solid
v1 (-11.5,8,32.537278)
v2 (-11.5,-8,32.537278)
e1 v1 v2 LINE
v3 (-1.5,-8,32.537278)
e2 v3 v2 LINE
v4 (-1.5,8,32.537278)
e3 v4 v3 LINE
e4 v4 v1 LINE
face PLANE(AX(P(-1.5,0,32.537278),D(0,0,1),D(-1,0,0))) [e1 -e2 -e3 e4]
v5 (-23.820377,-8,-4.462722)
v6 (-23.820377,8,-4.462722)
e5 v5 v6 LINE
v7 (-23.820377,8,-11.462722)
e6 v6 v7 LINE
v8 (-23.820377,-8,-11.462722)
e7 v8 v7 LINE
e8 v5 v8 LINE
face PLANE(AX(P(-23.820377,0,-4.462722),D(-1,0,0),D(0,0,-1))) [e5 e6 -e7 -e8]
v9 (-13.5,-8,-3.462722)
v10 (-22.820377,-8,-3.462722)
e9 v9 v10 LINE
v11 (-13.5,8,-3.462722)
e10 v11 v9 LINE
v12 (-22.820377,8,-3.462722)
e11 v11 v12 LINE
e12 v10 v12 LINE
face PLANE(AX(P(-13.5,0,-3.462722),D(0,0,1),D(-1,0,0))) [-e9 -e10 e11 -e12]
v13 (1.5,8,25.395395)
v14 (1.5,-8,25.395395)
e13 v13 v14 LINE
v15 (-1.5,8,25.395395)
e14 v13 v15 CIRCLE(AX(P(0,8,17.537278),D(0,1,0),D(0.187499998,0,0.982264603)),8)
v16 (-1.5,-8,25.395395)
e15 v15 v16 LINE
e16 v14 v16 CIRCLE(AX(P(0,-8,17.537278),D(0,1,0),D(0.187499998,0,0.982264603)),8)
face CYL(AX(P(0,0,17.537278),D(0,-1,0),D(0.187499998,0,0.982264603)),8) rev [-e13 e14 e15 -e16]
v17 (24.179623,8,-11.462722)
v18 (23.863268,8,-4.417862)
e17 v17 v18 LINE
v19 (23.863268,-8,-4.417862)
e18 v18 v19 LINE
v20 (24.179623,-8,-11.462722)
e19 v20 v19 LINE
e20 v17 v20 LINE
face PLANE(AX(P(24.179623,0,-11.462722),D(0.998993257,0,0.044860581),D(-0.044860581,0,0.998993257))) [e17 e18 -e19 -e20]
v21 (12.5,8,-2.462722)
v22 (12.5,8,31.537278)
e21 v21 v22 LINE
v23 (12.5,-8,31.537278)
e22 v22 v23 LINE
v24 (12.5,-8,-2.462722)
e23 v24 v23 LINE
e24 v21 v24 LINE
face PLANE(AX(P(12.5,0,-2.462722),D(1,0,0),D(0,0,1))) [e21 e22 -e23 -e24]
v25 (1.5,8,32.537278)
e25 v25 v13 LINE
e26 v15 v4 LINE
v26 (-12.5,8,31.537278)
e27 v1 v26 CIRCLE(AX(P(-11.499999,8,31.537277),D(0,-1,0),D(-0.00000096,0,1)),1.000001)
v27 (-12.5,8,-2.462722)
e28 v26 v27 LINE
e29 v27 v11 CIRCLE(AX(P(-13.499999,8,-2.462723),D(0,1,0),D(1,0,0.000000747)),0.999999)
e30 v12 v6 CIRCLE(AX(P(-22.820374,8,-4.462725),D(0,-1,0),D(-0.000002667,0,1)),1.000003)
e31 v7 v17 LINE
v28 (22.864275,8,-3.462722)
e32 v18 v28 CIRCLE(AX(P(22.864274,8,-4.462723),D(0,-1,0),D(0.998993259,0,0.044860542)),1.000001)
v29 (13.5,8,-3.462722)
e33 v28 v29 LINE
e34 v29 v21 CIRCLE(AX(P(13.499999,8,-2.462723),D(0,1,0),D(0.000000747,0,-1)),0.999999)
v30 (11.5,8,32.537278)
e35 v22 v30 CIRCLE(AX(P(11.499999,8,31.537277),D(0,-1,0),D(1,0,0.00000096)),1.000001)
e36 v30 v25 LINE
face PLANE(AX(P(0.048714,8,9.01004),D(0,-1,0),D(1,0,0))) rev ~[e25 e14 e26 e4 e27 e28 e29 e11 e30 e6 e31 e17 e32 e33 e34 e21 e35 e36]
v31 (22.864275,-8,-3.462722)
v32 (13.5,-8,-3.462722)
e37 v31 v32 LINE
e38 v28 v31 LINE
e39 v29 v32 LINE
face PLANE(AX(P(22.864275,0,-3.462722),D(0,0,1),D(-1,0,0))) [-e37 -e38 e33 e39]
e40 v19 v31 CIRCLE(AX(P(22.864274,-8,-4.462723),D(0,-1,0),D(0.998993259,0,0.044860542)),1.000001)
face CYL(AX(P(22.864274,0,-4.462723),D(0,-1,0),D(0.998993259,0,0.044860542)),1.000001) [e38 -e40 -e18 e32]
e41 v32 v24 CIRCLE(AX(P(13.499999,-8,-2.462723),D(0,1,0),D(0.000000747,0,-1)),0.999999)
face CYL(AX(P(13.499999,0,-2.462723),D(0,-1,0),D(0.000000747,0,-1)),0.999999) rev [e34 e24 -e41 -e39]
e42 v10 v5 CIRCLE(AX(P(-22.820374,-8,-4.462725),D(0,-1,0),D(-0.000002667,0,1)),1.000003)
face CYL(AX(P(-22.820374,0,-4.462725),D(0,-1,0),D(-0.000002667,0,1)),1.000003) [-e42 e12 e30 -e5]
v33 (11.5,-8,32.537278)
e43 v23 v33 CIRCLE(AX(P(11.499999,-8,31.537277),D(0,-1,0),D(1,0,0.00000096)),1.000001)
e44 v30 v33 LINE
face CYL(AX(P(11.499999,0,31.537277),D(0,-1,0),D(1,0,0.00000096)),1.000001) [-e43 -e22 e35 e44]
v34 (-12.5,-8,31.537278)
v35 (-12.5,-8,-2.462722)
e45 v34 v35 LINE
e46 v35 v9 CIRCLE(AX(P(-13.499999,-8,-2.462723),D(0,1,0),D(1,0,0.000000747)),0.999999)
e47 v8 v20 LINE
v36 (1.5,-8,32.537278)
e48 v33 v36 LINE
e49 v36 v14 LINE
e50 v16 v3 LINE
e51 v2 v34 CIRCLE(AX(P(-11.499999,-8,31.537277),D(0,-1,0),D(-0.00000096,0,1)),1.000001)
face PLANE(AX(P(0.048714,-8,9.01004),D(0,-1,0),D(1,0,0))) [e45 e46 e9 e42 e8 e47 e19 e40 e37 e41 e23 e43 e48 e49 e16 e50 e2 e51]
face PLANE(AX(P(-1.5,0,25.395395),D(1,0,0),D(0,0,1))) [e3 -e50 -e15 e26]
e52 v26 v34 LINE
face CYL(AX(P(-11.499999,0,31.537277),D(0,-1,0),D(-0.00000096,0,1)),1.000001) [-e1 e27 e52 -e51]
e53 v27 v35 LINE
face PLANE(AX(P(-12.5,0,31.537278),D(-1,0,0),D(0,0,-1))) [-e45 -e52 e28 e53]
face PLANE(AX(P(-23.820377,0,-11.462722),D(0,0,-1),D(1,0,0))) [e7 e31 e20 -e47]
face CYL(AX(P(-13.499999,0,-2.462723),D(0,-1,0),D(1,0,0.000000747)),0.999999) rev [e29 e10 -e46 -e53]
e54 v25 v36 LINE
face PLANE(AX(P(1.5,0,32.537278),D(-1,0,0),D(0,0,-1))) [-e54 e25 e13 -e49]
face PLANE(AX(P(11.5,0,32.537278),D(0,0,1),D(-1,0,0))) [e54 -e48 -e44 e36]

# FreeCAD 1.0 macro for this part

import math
import FreeCAD as App
import Part
import Sketcher

V = App.Vector
Q = App.Units.Quantity

doc = App.newDocument("Part")
body = doc.addObject("PartDesign::Body", "Body")

# Sketch on XZ plane
sketch1 = body.newObject("Sketcher::SketchObject", "Sketch")
sketch1.AttachmentSupport = (doc.getObject("XZ_Plane"), [""])
sketch1.MapMode = "FlatFace"
sketch1.addGeometry([
    Part.LineSegment(V(-23.820377, -11.462722, 0), V(24.179623, -11.462722, 0)),  # 0
    Part.LineSegment(V(24.179623, -11.462722, 0), V(23.863268, -4.417862, 0)),  # 1
    Part.ArcOfCircle(Part.Circle(V(22.864274, -4.462723, 0), V(0, 0, 1), 1.000001), math.radians(2.571183), math.radians(89.999953)),  # 2
    Part.LineSegment(V(22.864275, -3.462722, 0), V(13.5, -3.462722, 0)),  # 3
    Part.ArcOfCircle(Part.Circle(V(13.499999, -2.462723, 0), V(0, 0, 1), 0.999999), math.radians(179.999957), math.radians(270.000043)),  # 4
    Part.LineSegment(V(12.5, -2.462722, 0), V(12.5, 31.537278, 0)),  # 5
    Part.ArcOfCircle(Part.Circle(V(11.499999, 31.537277, 0), V(0, 0, 1), 1.000001), math.radians(0.000055), math.radians(89.999945)),  # 6
    Part.LineSegment(V(11.5, 32.537278, 0), V(1.5, 32.537278, 0)),  # 7
    Part.LineSegment(V(1.5, 32.537278, 0), V(1.5, 25.395395, 0)),  # 8
    Part.ArcOfCircle(Part.Circle(V(0, 17.537278, 0), V(0, 0, 1), 8), math.radians(100.806923), math.radians(439.193077)),  # 9
    Part.LineSegment(V(-1.5, 25.395395, 0), V(-1.5, 32.537278, 0)),  # 10
    Part.LineSegment(V(-1.5, 32.537278, 0), V(-11.5, 32.537278, 0)),  # 11
    Part.ArcOfCircle(Part.Circle(V(-11.499999, 31.537277, 0), V(0, 0, 1), 1.000001), math.radians(90.000055), math.radians(179.999945)),  # 12
    Part.LineSegment(V(-12.5, 31.537278, 0), V(-12.5, -2.462722, 0)),  # 13
    Part.ArcOfCircle(Part.Circle(V(-13.499999, -2.462723, 0), V(0, 0, 1), 0.999999), math.radians(-90.000043), math.radians(0.000043)),  # 14
    Part.LineSegment(V(-13.5, -3.462722, 0), V(-22.820377, -3.462722, 0)),  # 15
    Part.ArcOfCircle(Part.Circle(V(-22.820374, -4.462725, 0), V(0, 0, 1), 1.000003), math.radians(90.000153), math.radians(179.999847)),  # 16
    Part.LineSegment(V(-23.820377, -4.462722, 0), V(-23.820377, -11.462722, 0)),  # 17
], False)
sketch1.addConstraint([
    Sketcher.Constraint("Coincident", 0, 2, 1, 1),
    Sketcher.Constraint("Tangent", 1, 2, 2, 1),
    Sketcher.Constraint("Tangent", 2, 2, 3, 1),
    Sketcher.Constraint("Tangent", 3, 2, 4, 2),
    Sketcher.Constraint("Tangent", 4, 1, 5, 1),
    Sketcher.Constraint("Tangent", 5, 2, 6, 1),
    Sketcher.Constraint("Tangent", 6, 2, 7, 1),
    Sketcher.Constraint("Coincident", 7, 2, 8, 1),
    Sketcher.Constraint("Coincident", 8, 2, 9, 2),
    Sketcher.Constraint("Coincident", 9, 1, 10, 1),
    Sketcher.Constraint("Coincident", 10, 2, 11, 1),
    Sketcher.Constraint("Tangent", 11, 2, 12, 1),
    Sketcher.Constraint("Tangent", 12, 2, 13, 1),
    Sketcher.Constraint("Tangent", 13, 2, 14, 2),
    Sketcher.Constraint("Tangent", 14, 1, 15, 1),
    Sketcher.Constraint("Coincident", 15, 2, 16, 1),
    Sketcher.Constraint("Coincident", 16, 2, 17, 1),
    Sketcher.Constraint("Coincident", 17, 2, 0, 1),
    Sketcher.Constraint("Horizontal", 0),
    Sketcher.Constraint("Horizontal", 3),
    Sketcher.Constraint("Vertical", 5),
    Sketcher.Constraint("Horizontal", 7),
    Sketcher.Constraint("Vertical", 8),
    Sketcher.Constraint("Vertical", 10),
    Sketcher.Constraint("Horizontal", 11),
    Sketcher.Constraint("Vertical", 13),
    Sketcher.Constraint("Horizontal", 15),
    Sketcher.Constraint("Vertical", 17),
    Sketcher.Constraint("Equal", 2, 4),
    Sketcher.Constraint("Equal", 4, 6),
    Sketcher.Constraint("Equal", 6, 12),
    Sketcher.Constraint("Equal", 12, 14),
    Sketcher.Constraint("Equal", 12, 16),
    Sketcher.Constraint("Symmetric", 6, 3, 12, 3, -2),
    Sketcher.Constraint("Symmetric", 8, 2, 9, 1, -2),
    Sketcher.Constraint("Horizontal", 4, 3, 14, 3),
    Sketcher.Constraint("Horizontal", 2, 3, 16, 2),
    Sketcher.Constraint("Radius", 2, Q("1.000001 mm")),
    Sketcher.Constraint("Radius", 9, Q("8 mm")),
    Sketcher.Constraint("DistanceX", 0, 1, 0, 2, Q("48 mm")),
    Sketcher.Constraint("DistanceX", 7, 2, 7, 1, Q("10 mm")),
    Sketcher.Constraint("DistanceY", 5, 1, 5, 2, Q("34 mm")),
    Sketcher.Constraint("DistanceY", 17, 2, 17, 1, Q("7 mm")),
    Sketcher.Constraint("DistanceY", 9, 3, 6, 3, Q("13.999999 mm")),
    Sketcher.Constraint("DistanceX", 12, 3, 6, 3, Q("22.999998 mm")),
    Sketcher.Constraint("DistanceX", 16, 2, 15, 2, Q("1 mm")),
    Sketcher.Constraint("Distance", 1, Q("7.05196 mm")),
    Sketcher.Constraint("DistanceX", 3, 2, 3, 1, Q("9.364275 mm")),
    Sketcher.Constraint("DistanceY", -1, 1, 9, 3, Q("17.537278 mm")),
])
pad1 = body.newObject("PartDesign::Pad", "Pad")
pad1.Profile = sketch1
pad1.Length = 16
pad1.Midplane = True

doc.recompute()
